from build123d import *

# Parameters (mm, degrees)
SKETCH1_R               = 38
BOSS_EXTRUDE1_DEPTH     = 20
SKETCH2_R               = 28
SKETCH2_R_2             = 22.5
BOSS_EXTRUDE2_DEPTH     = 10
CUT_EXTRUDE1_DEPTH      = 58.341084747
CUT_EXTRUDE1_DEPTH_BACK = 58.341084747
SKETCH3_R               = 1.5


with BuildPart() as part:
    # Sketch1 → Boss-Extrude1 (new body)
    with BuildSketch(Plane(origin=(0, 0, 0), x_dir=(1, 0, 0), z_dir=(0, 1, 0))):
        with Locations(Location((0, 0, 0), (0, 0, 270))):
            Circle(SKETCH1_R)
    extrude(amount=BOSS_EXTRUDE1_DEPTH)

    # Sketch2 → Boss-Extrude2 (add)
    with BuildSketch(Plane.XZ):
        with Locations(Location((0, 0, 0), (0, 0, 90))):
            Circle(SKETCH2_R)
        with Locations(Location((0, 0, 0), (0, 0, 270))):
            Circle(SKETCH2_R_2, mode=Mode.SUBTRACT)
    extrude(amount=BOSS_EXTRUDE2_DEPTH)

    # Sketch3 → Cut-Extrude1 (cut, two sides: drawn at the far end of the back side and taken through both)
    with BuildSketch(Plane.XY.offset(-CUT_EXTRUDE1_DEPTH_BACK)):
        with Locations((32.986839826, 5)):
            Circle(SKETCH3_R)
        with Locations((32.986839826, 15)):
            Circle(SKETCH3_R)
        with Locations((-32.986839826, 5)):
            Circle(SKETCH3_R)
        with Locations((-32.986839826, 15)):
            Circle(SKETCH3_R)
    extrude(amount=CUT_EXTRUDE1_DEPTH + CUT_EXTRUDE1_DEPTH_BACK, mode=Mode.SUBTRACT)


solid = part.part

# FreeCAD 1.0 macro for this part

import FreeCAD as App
import Part
import Sketcher

V = App.Vector
Q = App.Units.Quantity

doc = App.newDocument("Part")
params = doc.addObject("Spreadsheet::Sheet", "Params")
for row, (alias, value) in enumerate([
    ("sketch1_diameter", "76 mm"),
    ("pad1_length", "20 mm"),
    ("sketch2_diameter", "56 mm"),
    ("sketch2_diameter2", "45 mm"),
    ("pad2_length", "10 mm"),
    ("sketch3_diameter", "3 mm"),
], start=1):
    params.set(f"A{row}", alias)
    params.set(f"B{row}", "=" + value)
    params.setAlias(f"B{row}", alias)

body = doc.addObject("PartDesign::Body", "Body")

# Sketch on XZ plane
sketch1 = body.newObject("Sketcher::SketchObject", "Sketch")
sketch1.AttachmentSupport = (doc.getObject("XZ_Plane"), [""])
sketch1.MapMode = "FlatFace"
sketch1.addGeometry(Part.Circle(V(0, 0, 0), V(0, 0, 1), 38), False)
sketch1.addConstraint([
    Sketcher.Constraint("Coincident", 0, 3, -1, 1),
    Sketcher.Constraint("Diameter", 0, Q("76 mm")),
])
sketch1.setExpression("Constraints[1]", "Params.sketch1_diameter")
pad1 = body.newObject("PartDesign::Pad", "Pad")
pad1.Profile = sketch1
pad1.setExpression("Length", "Params.pad1_length")
pad1.Reversed = True

# Sketch on XZ plane
sketch2 = body.newObject("Sketcher::SketchObject", "Sketch001")
sketch2.AttachmentSupport = (doc.getObject("XZ_Plane"), [""])
sketch2.MapMode = "FlatFace"
sketch2.addGeometry([
    Part.Circle(V(0, 0, 0), V(0, 0, 1), 28),
    Part.Circle(V(0, 0, 0), V(0, 0, 1), 22),
], False)
sketch2.addConstraint([
    Sketcher.Constraint("Coincident", 0, 3, -1, 1),
    Sketcher.Constraint("Coincident", 1, 3, -1, 1),
    Sketcher.Constraint("Diameter", 0, Q("56 mm")),
    Sketcher.Constraint("Diameter", 1, Q("45 mm")),
])
sketch2.setExpression("Constraints[2]", "Params.sketch2_diameter")
sketch2.setExpression("Constraints[3]", "Params.sketch2_diameter2")
pad2 = body.newObject("PartDesign::Pad", "Pad001")
pad2.Profile = sketch2
pad2.setExpression("Length", "Params.pad2_length")

# Sketch on XY plane
sketch3 = body.newObject("Sketcher::SketchObject", "Sketch002")
sketch3.AttachmentSupport = (doc.getObject("XY_Plane"), [""])
sketch3.MapMode = "FlatFace"
sketch3.addGeometry([
    Part.Circle(V(33, 5, 0), V(0, 0, 1), 1.5),
    Part.Circle(V(33, 15, 0), V(0, 0, 1), 1.5),
    Part.Circle(V(-33, 5, 0), V(0, 0, 1), 1.5),
    Part.Circle(V(-33, 15, 0), V(0, 0, 1), 1.5),
], False)
sketch3.addConstraint([
    Sketcher.Constraint("Equal", 0, 1),
    Sketcher.Constraint("Equal", 1, 2),
    Sketcher.Constraint("Equal", 2, 3),
    Sketcher.Constraint("Symmetric", 0, 3, 2, 3, -2),
    Sketcher.Constraint("Symmetric", 1, 3, 3, 3, -2),
    Sketcher.Constraint("Vertical", 0, 3, 1, 3),
    Sketcher.Constraint("Diameter", 0, Q("3 mm")),
    Sketcher.Constraint("DistanceY", -1, 1, 0, 3, Q("5 mm")),
    Sketcher.Constraint("DistanceY", -1, 1, 1, 3, Q("15 mm")),
    Sketcher.Constraint("DistanceX", -1, 1, 0, 3, Q("32.98684 mm")),
])
sketch3.setExpression("Constraints[6]", "Params.sketch3_diameter")
pocket1 = body.newObject("PartDesign::Pocket", "Pocket")
pocket1.Profile = sketch3
pocket1.Type = "ThroughAll"
pocket1.Midplane = True

doc.recompute()
